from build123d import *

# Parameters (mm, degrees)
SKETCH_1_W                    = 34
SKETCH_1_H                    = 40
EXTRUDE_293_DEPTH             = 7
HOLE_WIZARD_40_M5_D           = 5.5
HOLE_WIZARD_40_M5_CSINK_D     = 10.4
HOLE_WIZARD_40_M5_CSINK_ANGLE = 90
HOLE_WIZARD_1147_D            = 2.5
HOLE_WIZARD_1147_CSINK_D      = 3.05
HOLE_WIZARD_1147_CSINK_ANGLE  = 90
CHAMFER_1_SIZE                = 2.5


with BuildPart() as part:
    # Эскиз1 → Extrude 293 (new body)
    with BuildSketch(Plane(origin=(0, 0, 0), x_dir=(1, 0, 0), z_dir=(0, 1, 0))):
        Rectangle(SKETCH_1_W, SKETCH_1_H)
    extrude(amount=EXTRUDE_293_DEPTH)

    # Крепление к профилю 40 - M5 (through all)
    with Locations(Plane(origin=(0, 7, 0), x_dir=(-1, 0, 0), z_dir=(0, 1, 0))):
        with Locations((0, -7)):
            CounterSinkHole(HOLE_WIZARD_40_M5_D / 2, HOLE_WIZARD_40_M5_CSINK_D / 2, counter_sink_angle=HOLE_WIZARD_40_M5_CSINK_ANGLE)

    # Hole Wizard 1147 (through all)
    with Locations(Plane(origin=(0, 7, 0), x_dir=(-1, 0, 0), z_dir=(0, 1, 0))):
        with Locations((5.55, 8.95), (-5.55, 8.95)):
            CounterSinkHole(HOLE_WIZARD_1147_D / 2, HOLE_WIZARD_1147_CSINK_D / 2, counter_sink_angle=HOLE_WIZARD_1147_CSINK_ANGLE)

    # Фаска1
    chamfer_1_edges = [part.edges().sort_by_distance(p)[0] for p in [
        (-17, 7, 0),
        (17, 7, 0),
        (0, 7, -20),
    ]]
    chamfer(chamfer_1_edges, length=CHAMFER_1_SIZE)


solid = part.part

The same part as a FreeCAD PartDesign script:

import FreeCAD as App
import Part
import Sketcher
from FreeCAD import Vector


def edges_at(feature, points):
    """Names of the edges that pass closest to the given points."""
    edges = feature.Shape.Edges
    near = lambda p: min(range(len(edges)), key=lambda i: edges[i].distToShape(Part.Vertex(*p))[0])
    return sorted({f"Edge{near(p) + 1}" for p in points})

doc = App.newDocument("Part")
body = doc.addObject("PartDesign::Body", "Body")

# Sketch on XZ plane
sketch1 = body.newObject("Sketcher::SketchObject", "Sketch")
sketch1.AttachmentSupport = (doc.getObject("XZ_Plane"), [""])
sketch1.MapMode = "FlatFace"
sketch1.addGeometry([
    Part.LineSegment(Vector(-17, -20, 0), Vector(-17, 20, 0)),
    Part.LineSegment(Vector(-17, 20, 0), Vector(17, 20, 0)),
    Part.LineSegment(Vector(17, 20, 0), Vector(17, -20, 0)),
    Part.LineSegment(Vector(17, -20, 0), Vector(-17, -20, 0)),
], False)
sketch1.addConstraint([
    Sketcher.Constraint("Coincident", 0, 2, 1, 1),
    Sketcher.Constraint("Coincident", 1, 2, 2, 1),
    Sketcher.Constraint("Coincident", 2, 2, 3, 1),
    Sketcher.Constraint("Coincident", 3, 2, 0, 1),
    Sketcher.Constraint("Vertical", 0),
    Sketcher.Constraint("Horizontal", 1),
    Sketcher.Constraint("Vertical", 2),
    Sketcher.Constraint("Horizontal", 3),
    Sketcher.Constraint("Symmetric", 0, 2, 2, 2, -1, 1),
    Sketcher.Constraint("DistanceX", 1, 1, 1, 2, 34.0),
    Sketcher.Constraint("DistanceY", 0, 1, 0, 2, 40.0),
])
pad1 = body.newObject("PartDesign::Pad", "Pad")
pad1.Profile = sketch1
pad1.Length = 7
pad1.Reversed = True

# Sketch on XZ plane
sketch2 = body.newObject("Sketcher::SketchObject", "Sketch001")
sketch2.AttachmentSupport = (doc.getObject("XZ_Plane"), [""])
sketch2.MapMode = "FlatFace"
sketch2.AttachmentOffset = App.Placement(Vector(0, 0, -7), App.Rotation())
sketch2.addGeometry(Part.Circle(Vector(0, -7, 0), Vector(0, 0, 1), 2.8), False)
sketch2.addConstraint([
    Sketcher.Constraint("PointOnObject", 0, 3, -2),
    Sketcher.Constraint("Diameter", 0, 5.5),
    Sketcher.Constraint("DistanceY", 0, 3, -1, 1, 7.0),
])
doc.recompute()
hole = body.newObject("PartDesign::Hole", "Hole")
hole.Profile = sketch2
hole.ThreadType = "None"
hole.Diameter = 5.5
hole.DepthType = "ThroughAll"
hole.HoleCutType = "Countersink"
hole.HoleCutDiameter = 10.4
hole.HoleCutCountersinkAngle = 90
hole.Reversed = True

# Sketch on XZ plane
sketch3 = body.newObject("Sketcher::SketchObject", "Sketch002")
sketch3.AttachmentSupport = (doc.getObject("XZ_Plane"), [""])
sketch3.MapMode = "FlatFace"
sketch3.AttachmentOffset = App.Placement(Vector(0, 0, -7), App.Rotation())
sketch3.addGeometry([
    Part.Circle(Vector(-5.5, 8.9, 0), Vector(0, 0, 1), 1.2),
    Part.Circle(Vector(5.5, 8.9, 0), Vector(0, 0, 1), 1.2),
], False)
sketch3.addConstraint([
    Sketcher.Constraint("Equal", 0, 1),
    Sketcher.Constraint("Symmetric", 0, 3, 1, 3, -2),
    Sketcher.Constraint("Diameter", 0, 2.5),
    Sketcher.Constraint("DistanceX", 0, 3, 1, 3, 11.1),
    Sketcher.Constraint("DistanceY", -1, 1, 0, 3, 8.95),
])
doc.recompute()
hole2 = body.newObject("PartDesign::Hole", "Hole001")
hole2.Profile = sketch3
hole2.ThreadType = "None"
hole2.Diameter = 2.5
hole2.DepthType = "ThroughAll"
hole2.HoleCutType = "Countersink"
hole2.HoleCutDiameter = 3.05
hole2.HoleCutCountersinkAngle = 90
hole2.Reversed = True
doc.recompute()

chamfer = body.newObject("PartDesign::Chamfer", "Chamfer")
chamfer.Base = (hole2, edges_at(hole2, [(-17, 7, 0), (17, 7, 0), (0, 7, -20)]))
chamfer.Size = 2.5

doc.recompute()
